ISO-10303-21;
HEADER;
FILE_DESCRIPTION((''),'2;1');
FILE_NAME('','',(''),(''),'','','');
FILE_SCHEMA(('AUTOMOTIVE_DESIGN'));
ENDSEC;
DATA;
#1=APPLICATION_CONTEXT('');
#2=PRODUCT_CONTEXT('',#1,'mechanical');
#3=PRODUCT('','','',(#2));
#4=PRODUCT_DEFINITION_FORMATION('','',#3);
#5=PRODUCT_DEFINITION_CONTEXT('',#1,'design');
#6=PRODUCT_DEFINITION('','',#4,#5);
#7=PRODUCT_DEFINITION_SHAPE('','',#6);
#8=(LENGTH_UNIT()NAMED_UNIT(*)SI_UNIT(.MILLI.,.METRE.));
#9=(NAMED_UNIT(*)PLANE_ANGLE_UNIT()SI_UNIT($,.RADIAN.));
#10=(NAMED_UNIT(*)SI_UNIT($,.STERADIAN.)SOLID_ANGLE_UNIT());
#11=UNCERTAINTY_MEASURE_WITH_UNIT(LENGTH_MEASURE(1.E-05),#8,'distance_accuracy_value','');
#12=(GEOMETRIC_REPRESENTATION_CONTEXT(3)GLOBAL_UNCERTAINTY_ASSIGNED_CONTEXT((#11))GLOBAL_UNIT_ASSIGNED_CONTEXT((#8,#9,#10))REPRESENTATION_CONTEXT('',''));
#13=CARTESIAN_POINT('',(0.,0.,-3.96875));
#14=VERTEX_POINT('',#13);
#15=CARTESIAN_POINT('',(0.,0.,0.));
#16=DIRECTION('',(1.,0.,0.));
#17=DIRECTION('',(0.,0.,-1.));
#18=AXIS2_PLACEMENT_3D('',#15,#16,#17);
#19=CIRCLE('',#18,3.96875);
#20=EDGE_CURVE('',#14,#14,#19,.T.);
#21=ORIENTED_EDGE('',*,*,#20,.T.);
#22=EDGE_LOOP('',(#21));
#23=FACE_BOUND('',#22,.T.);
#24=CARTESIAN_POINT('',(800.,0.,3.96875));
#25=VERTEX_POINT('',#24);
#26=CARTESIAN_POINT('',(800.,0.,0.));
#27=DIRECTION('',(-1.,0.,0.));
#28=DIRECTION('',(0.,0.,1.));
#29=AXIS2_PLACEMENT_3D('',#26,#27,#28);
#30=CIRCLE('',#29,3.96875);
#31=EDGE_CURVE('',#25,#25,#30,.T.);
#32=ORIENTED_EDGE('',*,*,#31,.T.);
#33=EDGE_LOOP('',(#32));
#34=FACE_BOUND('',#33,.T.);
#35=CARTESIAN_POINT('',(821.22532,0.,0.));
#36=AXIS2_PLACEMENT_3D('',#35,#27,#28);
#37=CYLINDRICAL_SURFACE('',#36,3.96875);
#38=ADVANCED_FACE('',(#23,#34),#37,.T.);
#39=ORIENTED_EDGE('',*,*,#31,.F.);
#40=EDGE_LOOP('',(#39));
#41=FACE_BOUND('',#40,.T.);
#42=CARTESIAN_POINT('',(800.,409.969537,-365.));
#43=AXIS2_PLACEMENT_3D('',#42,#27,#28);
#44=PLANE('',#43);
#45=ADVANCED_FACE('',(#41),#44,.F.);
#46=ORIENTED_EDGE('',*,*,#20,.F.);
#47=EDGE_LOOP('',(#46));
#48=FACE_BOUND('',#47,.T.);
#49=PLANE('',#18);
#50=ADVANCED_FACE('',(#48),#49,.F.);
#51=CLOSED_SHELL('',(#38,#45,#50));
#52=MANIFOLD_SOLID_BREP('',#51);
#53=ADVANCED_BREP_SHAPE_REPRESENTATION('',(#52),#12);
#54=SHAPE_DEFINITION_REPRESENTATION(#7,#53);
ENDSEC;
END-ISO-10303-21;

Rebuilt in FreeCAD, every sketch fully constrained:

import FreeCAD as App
import Part
import Sketcher
from FreeCAD import Vector

doc = App.newDocument("Part")
body = doc.addObject("PartDesign::Body", "Body")

# Sketch on YZ plane
sketch1 = body.newObject("Sketcher::SketchObject", "Sketch")
sketch1.AttachmentSupport = (doc.getObject("YZ_Plane"), [""])
sketch1.MapMode = "FlatFace"
sketch1.addGeometry(Part.Circle(Vector(0, 0, 0), Vector(0, 0, 1), 4), False)
sketch1.addConstraint(Sketcher.Constraint("Coincident", 0, 3, -1, 1))
sketch1.addConstraint(Sketcher.Constraint("Diameter", 0, 7.9375))
pad1 = body.newObject("PartDesign::Pad", "Pad")
pad1.Profile = sketch1
pad1.Length = 800

doc.recompute()
